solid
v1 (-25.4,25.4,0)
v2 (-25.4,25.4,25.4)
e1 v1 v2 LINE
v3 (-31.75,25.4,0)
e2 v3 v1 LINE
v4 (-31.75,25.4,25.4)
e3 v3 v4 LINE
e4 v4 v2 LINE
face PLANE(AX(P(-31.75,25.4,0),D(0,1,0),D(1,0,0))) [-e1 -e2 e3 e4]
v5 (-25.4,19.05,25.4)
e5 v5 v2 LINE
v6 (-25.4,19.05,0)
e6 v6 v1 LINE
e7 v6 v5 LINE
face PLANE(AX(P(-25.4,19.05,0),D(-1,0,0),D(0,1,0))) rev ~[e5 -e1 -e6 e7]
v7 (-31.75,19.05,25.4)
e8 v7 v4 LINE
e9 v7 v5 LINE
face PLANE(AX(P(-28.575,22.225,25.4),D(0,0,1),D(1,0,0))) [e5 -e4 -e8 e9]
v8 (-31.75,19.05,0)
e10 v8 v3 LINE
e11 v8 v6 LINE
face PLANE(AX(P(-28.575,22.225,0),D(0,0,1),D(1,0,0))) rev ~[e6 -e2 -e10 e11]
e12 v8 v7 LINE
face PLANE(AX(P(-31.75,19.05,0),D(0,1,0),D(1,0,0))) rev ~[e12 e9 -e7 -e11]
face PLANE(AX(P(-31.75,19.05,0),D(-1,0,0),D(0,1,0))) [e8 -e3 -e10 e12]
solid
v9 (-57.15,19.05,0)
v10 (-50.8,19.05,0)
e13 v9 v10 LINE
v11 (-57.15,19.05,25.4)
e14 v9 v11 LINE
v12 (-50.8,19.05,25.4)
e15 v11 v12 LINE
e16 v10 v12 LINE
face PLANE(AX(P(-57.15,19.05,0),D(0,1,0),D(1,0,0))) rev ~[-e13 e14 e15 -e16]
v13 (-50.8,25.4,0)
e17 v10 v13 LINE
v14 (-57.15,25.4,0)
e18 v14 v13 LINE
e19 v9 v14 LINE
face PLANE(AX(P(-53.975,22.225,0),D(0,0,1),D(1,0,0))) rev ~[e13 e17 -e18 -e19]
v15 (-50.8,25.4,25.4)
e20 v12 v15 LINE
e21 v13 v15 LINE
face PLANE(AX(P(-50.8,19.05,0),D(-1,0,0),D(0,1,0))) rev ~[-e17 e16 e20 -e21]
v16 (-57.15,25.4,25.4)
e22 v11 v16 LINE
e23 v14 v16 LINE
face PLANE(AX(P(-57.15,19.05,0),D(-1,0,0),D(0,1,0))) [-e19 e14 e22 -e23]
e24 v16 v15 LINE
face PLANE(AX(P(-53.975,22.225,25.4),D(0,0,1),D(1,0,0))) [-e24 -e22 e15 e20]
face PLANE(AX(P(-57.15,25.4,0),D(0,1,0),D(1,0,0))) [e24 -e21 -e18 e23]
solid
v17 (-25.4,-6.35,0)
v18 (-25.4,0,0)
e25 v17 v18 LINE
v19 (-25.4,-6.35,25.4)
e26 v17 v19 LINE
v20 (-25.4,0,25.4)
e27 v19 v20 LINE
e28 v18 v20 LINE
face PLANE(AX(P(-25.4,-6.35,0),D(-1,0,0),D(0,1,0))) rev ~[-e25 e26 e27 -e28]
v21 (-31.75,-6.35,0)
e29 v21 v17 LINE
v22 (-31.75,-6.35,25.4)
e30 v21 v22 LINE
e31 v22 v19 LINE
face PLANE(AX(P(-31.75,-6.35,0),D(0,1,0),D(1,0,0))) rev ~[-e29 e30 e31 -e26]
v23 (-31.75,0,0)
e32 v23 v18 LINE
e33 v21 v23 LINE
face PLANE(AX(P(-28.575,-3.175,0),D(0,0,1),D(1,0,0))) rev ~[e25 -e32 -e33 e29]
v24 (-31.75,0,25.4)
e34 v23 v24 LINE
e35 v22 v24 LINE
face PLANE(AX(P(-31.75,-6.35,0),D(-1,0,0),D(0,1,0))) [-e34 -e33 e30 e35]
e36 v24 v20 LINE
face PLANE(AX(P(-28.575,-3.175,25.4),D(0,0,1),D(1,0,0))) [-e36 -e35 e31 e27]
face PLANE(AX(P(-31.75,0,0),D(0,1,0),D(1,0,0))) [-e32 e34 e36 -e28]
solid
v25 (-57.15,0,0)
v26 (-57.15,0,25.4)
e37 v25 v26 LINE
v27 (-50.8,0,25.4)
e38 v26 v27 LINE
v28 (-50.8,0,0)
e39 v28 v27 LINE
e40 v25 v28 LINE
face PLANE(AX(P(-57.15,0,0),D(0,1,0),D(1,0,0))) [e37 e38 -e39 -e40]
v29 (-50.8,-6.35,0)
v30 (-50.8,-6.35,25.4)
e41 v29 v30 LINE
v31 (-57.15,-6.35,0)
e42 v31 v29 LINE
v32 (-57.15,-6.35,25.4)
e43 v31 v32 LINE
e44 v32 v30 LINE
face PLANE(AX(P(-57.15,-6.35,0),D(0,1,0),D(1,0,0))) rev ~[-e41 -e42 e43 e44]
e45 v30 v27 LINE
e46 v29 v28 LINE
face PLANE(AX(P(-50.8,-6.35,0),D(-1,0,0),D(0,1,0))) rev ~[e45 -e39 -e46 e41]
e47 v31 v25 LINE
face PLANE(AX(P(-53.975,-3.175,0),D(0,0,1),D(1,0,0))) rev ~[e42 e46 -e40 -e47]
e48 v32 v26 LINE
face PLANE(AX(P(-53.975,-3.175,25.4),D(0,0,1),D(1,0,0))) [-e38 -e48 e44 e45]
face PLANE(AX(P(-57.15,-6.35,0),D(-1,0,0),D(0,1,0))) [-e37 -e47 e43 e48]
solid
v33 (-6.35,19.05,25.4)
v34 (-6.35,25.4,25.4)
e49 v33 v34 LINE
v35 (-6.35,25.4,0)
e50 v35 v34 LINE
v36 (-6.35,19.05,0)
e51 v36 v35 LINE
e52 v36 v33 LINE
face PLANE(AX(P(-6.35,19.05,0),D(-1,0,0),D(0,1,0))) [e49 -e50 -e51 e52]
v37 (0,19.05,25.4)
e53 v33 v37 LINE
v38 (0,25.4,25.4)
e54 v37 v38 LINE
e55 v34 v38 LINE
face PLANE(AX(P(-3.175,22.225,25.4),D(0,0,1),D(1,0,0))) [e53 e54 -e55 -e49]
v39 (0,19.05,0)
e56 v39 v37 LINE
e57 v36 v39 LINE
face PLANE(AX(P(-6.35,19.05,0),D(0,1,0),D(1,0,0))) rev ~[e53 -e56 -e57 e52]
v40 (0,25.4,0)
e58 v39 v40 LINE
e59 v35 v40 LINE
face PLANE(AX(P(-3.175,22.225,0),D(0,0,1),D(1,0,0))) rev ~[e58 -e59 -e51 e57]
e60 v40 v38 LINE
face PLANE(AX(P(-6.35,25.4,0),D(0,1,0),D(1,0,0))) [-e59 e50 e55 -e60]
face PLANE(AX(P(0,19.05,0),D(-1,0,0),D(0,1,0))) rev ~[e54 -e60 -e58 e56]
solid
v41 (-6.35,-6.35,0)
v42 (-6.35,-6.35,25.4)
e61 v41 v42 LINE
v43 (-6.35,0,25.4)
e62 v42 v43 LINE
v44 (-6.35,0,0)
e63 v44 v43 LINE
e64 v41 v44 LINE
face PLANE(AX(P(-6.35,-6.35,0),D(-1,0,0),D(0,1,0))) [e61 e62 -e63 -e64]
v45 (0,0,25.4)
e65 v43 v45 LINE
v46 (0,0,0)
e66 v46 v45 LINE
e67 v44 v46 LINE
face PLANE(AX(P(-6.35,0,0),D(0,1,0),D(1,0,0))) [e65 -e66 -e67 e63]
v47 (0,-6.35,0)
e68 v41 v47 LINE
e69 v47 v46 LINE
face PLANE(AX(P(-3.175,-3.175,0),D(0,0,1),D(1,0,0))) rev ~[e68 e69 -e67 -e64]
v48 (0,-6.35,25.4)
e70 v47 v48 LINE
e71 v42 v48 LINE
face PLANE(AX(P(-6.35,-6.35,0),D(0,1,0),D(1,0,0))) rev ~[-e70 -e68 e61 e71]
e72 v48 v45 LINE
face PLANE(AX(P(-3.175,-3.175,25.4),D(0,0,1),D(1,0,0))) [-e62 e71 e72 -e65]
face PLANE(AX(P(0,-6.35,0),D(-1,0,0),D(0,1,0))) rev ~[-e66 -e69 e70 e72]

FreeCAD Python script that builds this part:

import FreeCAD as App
import Part
import Sketcher

V = App.Vector
Q = App.Units.Quantity


def add_polygon(sketch, points):
    """Adds a closed chain of lines whose ends are joined by coincident constraints."""
    first, n = sketch.GeometryCount, len(points)
    for a, b in zip(points, points[1:] + points[:1]):
        sketch.addGeometry(Part.LineSegment(App.Vector(*a, 0), App.Vector(*b, 0)), False)
    for i in range(n):
        sketch.addConstraint(Sketcher.Constraint("Coincident", first + i, 2, first + (i + 1) % n, 1))

doc = App.newDocument("Part")
body = doc.addObject("PartDesign::Body", "Body")
body.AllowCompound = True

sketch1 = doc.addObject("Sketcher::SketchObject", "Sketch")
body.addObject(sketch1)
sketch1.AttachmentSupport = (doc.XY_Plane, [""])
sketch1.MapMode = "FlatFace"
add_polygon(sketch1, [(-6.35, 0), (-6.35, -6.35), (0, -6.35), (0, 0)])
add_polygon(sketch1, [(-57.15, 0), (-57.15, -6.35), (-50.8, -6.35), (-50.8, 0)])
add_polygon(sketch1, [(-31.75, 0), (-31.75, -6.35), (-25.4, -6.35), (-25.4, 0)])
add_polygon(sketch1, [(-57.15, 25.4), (-57.15, 19.05), (-50.8, 19.05), (-50.8, 25.4)])
add_polygon(sketch1, [(-31.75, 25.4), (-31.75, 19.05), (-25.4, 19.05), (-25.4, 25.4)])
add_polygon(sketch1, [(-6.35, 25.4), (-6.35, 19.05), (0, 19.05), (0, 25.4)])
sketch1.addConstraint([
    Sketcher.Constraint("Vertical", 0),
    Sketcher.Constraint("Horizontal", 1),
    Sketcher.Constraint("Vertical", 2),
    Sketcher.Constraint("Horizontal", 3),
    Sketcher.Constraint("Vertical", 4),
    Sketcher.Constraint("Horizontal", 5),
    Sketcher.Constraint("Vertical", 6),
    Sketcher.Constraint("Horizontal", 7),
    Sketcher.Constraint("Vertical", 8),
    Sketcher.Constraint("Horizontal", 9),
    Sketcher.Constraint("Vertical", 10),
    Sketcher.Constraint("Horizontal", 11),
    Sketcher.Constraint("Vertical", 12),
    Sketcher.Constraint("Horizontal", 13),
    Sketcher.Constraint("Vertical", 14),
    Sketcher.Constraint("Horizontal", 15),
    Sketcher.Constraint("Vertical", 16),
    Sketcher.Constraint("Horizontal", 17),
    Sketcher.Constraint("Vertical", 18),
    Sketcher.Constraint("Horizontal", 19),
    Sketcher.Constraint("Vertical", 20),
    Sketcher.Constraint("Horizontal", 21),
    Sketcher.Constraint("Vertical", 22),
    Sketcher.Constraint("Horizontal", 23),
    Sketcher.Constraint("Coincident", 2, 2, -1, 1),
    Sketcher.Constraint("PointOnObject", 6, 2, -1),
    Sketcher.Constraint("PointOnObject", 10, 2, -1),
    Sketcher.Constraint("PointOnObject", 21, 2, -2),
    Sketcher.Constraint("Horizontal", 1, 2, 4, 2),
    Sketcher.Constraint("Horizontal", 5, 2, 8, 2),
    Sketcher.Constraint("Horizontal", 13, 2, 16, 2),
    Sketcher.Constraint("Horizontal", 15, 2, 18, 2),
    Sketcher.Constraint("Horizontal", 17, 2, 20, 2),
    Sketcher.Constraint("Horizontal", 19, 2, 22, 2),
    Sketcher.Constraint("Vertical", 7, 2, 12, 2),
    Sketcher.Constraint("Vertical", 6, 2, 13, 2),
    Sketcher.Constraint("Vertical", 11, 2, 16, 2),
    Sketcher.Constraint("Vertical", 10, 2, 17, 2),
    Sketcher.Constraint("Vertical", 3, 2, 20, 2),
    Sketcher.Constraint("Equal", 3, 5),
    Sketcher.Constraint("Equal", 7, 9),
    Sketcher.Constraint("Equal", 23, 0),
    Sketcher.Constraint("Equal", 10, 12),
    Sketcher.Constraint("DistanceX", 5, 2, -1, 1, Q("2 in")),
    Sketcher.Constraint("DistanceX", 9, 2, -1, 1, Q("1 in")),
    Sketcher.Constraint("DistanceY", -1, 1, 14, 2, Q("1 in")),
    Sketcher.Constraint("DistanceX", 1, 1, 1, 2, Q("0.25 in")),
])
pad1 = doc.addObject("PartDesign::Pad", "Pad")
body.addObject(pad1)
pad1.Profile = sketch1
pad1.Length = Q("1 in")

doc.recompute()
